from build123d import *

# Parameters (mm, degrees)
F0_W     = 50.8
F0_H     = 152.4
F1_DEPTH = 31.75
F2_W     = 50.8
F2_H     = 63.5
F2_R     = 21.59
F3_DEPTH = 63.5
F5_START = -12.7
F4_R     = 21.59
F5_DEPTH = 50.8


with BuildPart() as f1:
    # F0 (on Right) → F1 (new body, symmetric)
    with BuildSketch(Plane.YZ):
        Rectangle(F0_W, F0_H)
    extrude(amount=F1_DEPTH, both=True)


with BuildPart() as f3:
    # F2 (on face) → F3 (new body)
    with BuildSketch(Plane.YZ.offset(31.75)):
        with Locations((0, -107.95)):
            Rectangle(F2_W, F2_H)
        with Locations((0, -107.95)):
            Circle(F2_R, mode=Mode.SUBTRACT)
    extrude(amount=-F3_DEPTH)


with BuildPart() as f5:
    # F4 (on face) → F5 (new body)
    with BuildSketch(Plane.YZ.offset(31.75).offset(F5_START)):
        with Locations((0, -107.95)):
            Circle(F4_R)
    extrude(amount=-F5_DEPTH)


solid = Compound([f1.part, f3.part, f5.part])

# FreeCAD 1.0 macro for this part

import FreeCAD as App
import Part
import Sketcher

V = App.Vector
Q = App.Units.Quantity

doc = App.newDocument("Part")
params = doc.addObject("Spreadsheet::Sheet", "Params")
for row, (alias, value) in enumerate([
    ("sketch1_width", "2 in"),
    ("sketch1_height", "6 in"),
    ("pad1_length", "2.5 in"),
    ("sketch2_diameter", "1.7 in"),
    ("sketch2_width", "2 in"),
    ("sketch2_height", "2.5 in"),
    ("pad2_length", "2.5 in"),
    ("sketch3_diameter", "1.7 in"),
    ("pad3_length", "2 in"),
], start=1):
    params.set(f"A{row}", alias)
    params.set(f"B{row}", "=" + value)
    params.setAlias(f"B{row}", alias)

body = doc.addObject("PartDesign::Body", "Body")

# Sketch on YZ plane
sketch1 = body.newObject("Sketcher::SketchObject", "Sketch")
sketch1.AttachmentSupport = (doc.getObject("YZ_Plane"), [""])
sketch1.MapMode = "FlatFace"
sketch1.addGeometry(Part.LineSegment(V(-25, 76, 0), V(-25, -76, 0)), False)
sketch1.addGeometry(Part.LineSegment(V(-25, -76, 0), V(25, -76, 0)), False)
sketch1.addGeometry(Part.LineSegment(V(25, -76, 0), V(25, 76, 0)), False)
sketch1.addGeometry(Part.LineSegment(V(25, 76, 0), V(-25, 76, 0)), False)
sketch1.addConstraint(Sketcher.Constraint("Coincident", 0, 2, 1, 1))
sketch1.addConstraint(Sketcher.Constraint("Coincident", 1, 2, 2, 1))
sketch1.addConstraint(Sketcher.Constraint("Coincident", 2, 2, 3, 1))
sketch1.addConstraint(Sketcher.Constraint("Coincident", 3, 2, 0, 1))
sketch1.addConstraint(Sketcher.Constraint("Vertical", 0))
sketch1.addConstraint(Sketcher.Constraint("Horizontal", 1))
sketch1.addConstraint(Sketcher.Constraint("Vertical", 2))
sketch1.addConstraint(Sketcher.Constraint("Horizontal", 3))
sketch1.addConstraint(Sketcher.Constraint("Symmetric", 0, 2, 2, 2, -1, 1))
sketch1.addConstraint(Sketcher.Constraint("DistanceX", 1, 1, 1, 2, Q("2 in")))
sketch1.addConstraint(Sketcher.Constraint("DistanceY", 0, 2, 0, 1, Q("6 in")))
sketch1.setExpression("Constraints[9]", "Params.sketch1_width")
sketch1.setExpression("Constraints[10]", "Params.sketch1_height")
pad1 = body.newObject("PartDesign::Pad", "Pad")
pad1.Profile = sketch1
pad1.setExpression("Length", "Params.pad1_length")
pad1.Midplane = True
body2 = doc.addObject("PartDesign::Body", "Body001")

# Sketch on YZ plane
sketch2 = body2.newObject("Sketcher::SketchObject", "Sketch001")
sketch2.AttachmentSupport = (doc.getObject("YZ_Plane001"), [""])
sketch2.MapMode = "FlatFace"
sketch2.AttachmentOffset = App.Placement(V(0, 0, 1.25 * 25.4), App.Rotation())
sketch2.addGeometry(Part.LineSegment(V(-25, -76, 0), V(-25, -140, 0)), False)
sketch2.addGeometry(Part.LineSegment(V(-25, -140, 0), V(25, -140, 0)), False)
sketch2.addGeometry(Part.LineSegment(V(25, -140, 0), V(25, -76, 0)), False)
sketch2.addGeometry(Part.LineSegment(V(25, -76, 0), V(-25, -76, 0)), False)
sketch2.addGeometry(Part.Circle(V(0, -108, 0), V(0, 0, 1), 22), False)
sketch2.addConstraint(Sketcher.Constraint("Coincident", 0, 2, 1, 1))
sketch2.addConstraint(Sketcher.Constraint("Coincident", 1, 2, 2, 1))
sketch2.addConstraint(Sketcher.Constraint("Coincident", 2, 2, 3, 1))
sketch2.addConstraint(Sketcher.Constraint("Coincident", 3, 2, 0, 1))
sketch2.addConstraint(Sketcher.Constraint("Vertical", 0))
sketch2.addConstraint(Sketcher.Constraint("Horizontal", 1))
sketch2.addConstraint(Sketcher.Constraint("Vertical", 2))
sketch2.addConstraint(Sketcher.Constraint("Horizontal", 3))
sketch2.addConstraint(Sketcher.Constraint("PointOnObject", 4, 3, -2))
sketch2.addConstraint(Sketcher.Constraint("Diameter", 4, Q("1.7 in")))
sketch2.addConstraint(Sketcher.Constraint("DistanceX", 1, 1, 1, 2, Q("2 in")))
sketch2.addConstraint(Sketcher.Constraint("DistanceY", 0, 2, 0, 1, Q("2.5 in")))
sketch2.addConstraint(Sketcher.Constraint("DistanceX", 0, 2, -1, 1, Q("1 in")))
sketch2.addConstraint(Sketcher.Constraint("DistanceY", 2, 2, -1, 1, Q("3 in")))
sketch2.addConstraint(Sketcher.Constraint("DistanceY", 4, 3, -1, 1, Q("4.25 in")))
sketch2.setExpression("Constraints[9]", "Params.sketch2_diameter")
sketch2.setExpression("Constraints[10]", "Params.sketch2_width")
sketch2.setExpression("Constraints[11]", "Params.sketch2_height")
pad2 = body2.newObject("PartDesign::Pad", "Pad001")
pad2.Profile = sketch2
pad2.setExpression("Length", "Params.pad2_length")
pad2.Reversed = True
body3 = doc.addObject("PartDesign::Body", "Body002")

# Sketch on YZ plane
sketch3 = body3.newObject("Sketcher::SketchObject", "Sketch002")
sketch3.AttachmentSupport = (doc.getObject("YZ_Plane002"), [""])
sketch3.MapMode = "FlatFace"
sketch3.AttachmentOffset = App.Placement(V(0, 0, 0.75 * 25.4), App.Rotation())
sketch3.addGeometry(Part.Circle(V(0, -108, 0), V(0, 0, 1), 22), False)
sketch3.addConstraint(Sketcher.Constraint("PointOnObject", 0, 3, -2))
sketch3.addConstraint(Sketcher.Constraint("Diameter", 0, Q("1.7 in")))
sketch3.addConstraint(Sketcher.Constraint("DistanceY", 0, 3, -1, 1, Q("4.25 in")))
sketch3.setExpression("Constraints[1]", "Params.sketch3_diameter")
pad3 = body3.newObject("PartDesign::Pad", "Pad002")
pad3.Profile = sketch3
pad3.setExpression("Length", "Params.pad3_length")
pad3.Reversed = True

doc.recompute()
